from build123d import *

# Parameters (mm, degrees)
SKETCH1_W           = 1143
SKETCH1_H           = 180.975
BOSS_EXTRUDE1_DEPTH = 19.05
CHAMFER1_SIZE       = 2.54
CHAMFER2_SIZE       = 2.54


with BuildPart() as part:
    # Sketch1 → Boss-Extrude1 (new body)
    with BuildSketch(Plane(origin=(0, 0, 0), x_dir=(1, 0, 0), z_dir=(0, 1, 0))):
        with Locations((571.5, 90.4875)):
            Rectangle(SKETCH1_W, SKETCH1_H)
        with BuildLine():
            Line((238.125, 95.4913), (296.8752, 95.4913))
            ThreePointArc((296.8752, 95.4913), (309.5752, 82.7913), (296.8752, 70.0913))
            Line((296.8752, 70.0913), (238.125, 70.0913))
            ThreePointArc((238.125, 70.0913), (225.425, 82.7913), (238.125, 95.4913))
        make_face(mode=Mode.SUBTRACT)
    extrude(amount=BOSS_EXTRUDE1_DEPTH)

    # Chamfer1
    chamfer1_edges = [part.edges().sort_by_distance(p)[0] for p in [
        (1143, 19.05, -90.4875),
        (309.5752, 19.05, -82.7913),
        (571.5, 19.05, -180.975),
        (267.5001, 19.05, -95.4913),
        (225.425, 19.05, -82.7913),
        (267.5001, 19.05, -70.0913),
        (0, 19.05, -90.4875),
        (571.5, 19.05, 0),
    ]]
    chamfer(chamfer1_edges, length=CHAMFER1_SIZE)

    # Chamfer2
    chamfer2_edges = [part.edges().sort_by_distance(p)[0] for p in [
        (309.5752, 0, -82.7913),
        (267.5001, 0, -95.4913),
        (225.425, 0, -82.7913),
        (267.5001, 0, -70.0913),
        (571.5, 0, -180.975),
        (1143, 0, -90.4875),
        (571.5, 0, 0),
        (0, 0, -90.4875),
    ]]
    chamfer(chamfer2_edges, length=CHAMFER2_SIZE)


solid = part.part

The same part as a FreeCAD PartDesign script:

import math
import FreeCAD as App
import Part
import Sketcher

V = App.Vector
Q = App.Units.Quantity


def edges_at(feature, points):
    """Names of the edges that pass closest to the given points."""
    edges = feature.Shape.Edges
    near = lambda p: min(range(len(edges)), key=lambda i: edges[i].distToShape(Part.Vertex(*p))[0])
    return sorted({f"Edge{near(p) + 1}" for p in points})


def add_polygon(sketch, points):
    """Adds a closed chain of lines whose ends are joined by coincident constraints."""
    first, n = sketch.GeometryCount, len(points)
    for a, b in zip(points, points[1:] + points[:1]):
        sketch.addGeometry(Part.LineSegment(App.Vector(*a, 0), App.Vector(*b, 0)), False)
    for i in range(n):
        sketch.addConstraint(Sketcher.Constraint("Coincident", first + i, 2, first + (i + 1) % n, 1))

doc = App.newDocument("Part")
params = doc.addObject("Spreadsheet::Sheet", "Params")
for row, (alias, value) in enumerate([
    ("sketch1_radius", "0.5 in"),
    ("sketch1_width", "45 in"),
    ("sketch1_width2", "2.313 in"),
    ("sketch1_height", "7.125 in"),
    ("pad1_length", "0.75 in"),
    ("chamfer_size", "0.1 in"),
    ("chamfer2_size", "0.1 in"),
], start=1):
    params.set(f"A{row}", alias)
    params.set(f"B{row}", "=" + value)
    params.setAlias(f"B{row}", alias)

body = doc.addObject("PartDesign::Body", "Body")

# Sketch on XZ plane
sketch1 = doc.addObject("Sketcher::SketchObject", "Sketch")
body.addObject(sketch1)
sketch1.AttachmentSupport = (doc.XZ_Plane, [""])
sketch1.MapMode = "FlatFace"
add_polygon(sketch1, [(0, -181), (0, 0), (1143, 0), (1143, -181)])  # lines 0-3
sketch1.addGeometry(Part.ArcOfCircle(Part.Circle(V(238, -83, 0), V(0, 0, 1), 13), math.radians(90), math.radians(270)), False)  # 4
sketch1.addGeometry(Part.LineSegment(V(238, -95, 0), V(297, -95, 0)), False)  # 5
sketch1.addGeometry(Part.ArcOfCircle(Part.Circle(V(297, -83, 0), V(0, 0, 1), 13), math.radians(-90), math.radians(90)), False)  # 6
sketch1.addGeometry(Part.LineSegment(V(297, -70, 0), V(238, -70, 0)), False)  # 7
sketch1.addConstraint([
    Sketcher.Constraint("Tangent", 4, 2, 5, 1),
    Sketcher.Constraint("Tangent", 5, 2, 6, 1),
    Sketcher.Constraint("Tangent", 6, 2, 7, 1),
    Sketcher.Constraint("Tangent", 7, 2, 4, 1),
    Sketcher.Constraint("Vertical", 0),
    Sketcher.Constraint("Horizontal", 1),
    Sketcher.Constraint("Vertical", 2),
    Sketcher.Constraint("Horizontal", 3),
    Sketcher.Constraint("Horizontal", 5),
    Sketcher.Constraint("Horizontal", 7),
    Sketcher.Constraint("Coincident", 0, 2, -1, 1),
    Sketcher.Constraint("Radius", 4, Q("0.5 in")),
    Sketcher.Constraint("DistanceX", 1, 1, 1, 2, Q("45 in")),
    Sketcher.Constraint("DistanceX", 5, 1, 5, 2, Q("2.313 in")),
    Sketcher.Constraint("DistanceY", 0, 1, 0, 2, Q("7.125 in")),
    Sketcher.Constraint("DistanceX", -1, 1, 4, 3, Q("9.375 in")),
    Sketcher.Constraint("DistanceY", 4, 3, -1, 1, Q("3.2595 in")),
])
sketch1.setExpression("Constraints[15]", "Params.sketch1_radius")
sketch1.setExpression("Constraints[16]", "Params.sketch1_width")
sketch1.setExpression("Constraints[17]", "Params.sketch1_width2")
sketch1.setExpression("Constraints[18]", "Params.sketch1_height")
pad1 = doc.addObject("PartDesign::Pad", "Pad")
body.addObject(pad1)
pad1.Profile = sketch1
pad1.setExpression("Length", "Params.pad1_length")
pad1.Reversed = True
doc.recompute()

chamfer = doc.addObject("PartDesign::Chamfer", "Chamfer")
body.addObject(chamfer)
chamfer.Base = (pad1, edges_at(pad1, [
    (1143, 19.05, -90.487),
    (309.575, 19.05, -82.791),
    (571.5, 19.05, -180.975),
    (267.5, 19.05, -95.491),
    (225.425, 19.05, -82.791),
    (267.5, 19.05, -70.091),
    (0, 19.05, -90.487),
    (571.5, 19.05, 0),
]))
chamfer.setExpression("Size", "Params.chamfer_size")
doc.recompute()

chamfer2 = doc.addObject("PartDesign::Chamfer", "Chamfer001")
body.addObject(chamfer2)
chamfer2.Base = (chamfer, edges_at(chamfer, [
    (309.575, 0, -82.791),
    (267.5, 0, -95.491),
    (225.425, 0, -82.791),
    (267.5, 0, -70.091),
    (571.5, 0, -180.975),
    (1143, 0, -90.487),
    (571.5, 0, 0),
    (0, 0, -90.487),
]))
chamfer2.setExpression("Size", "Params.chamfer2_size")

doc.recompute()
